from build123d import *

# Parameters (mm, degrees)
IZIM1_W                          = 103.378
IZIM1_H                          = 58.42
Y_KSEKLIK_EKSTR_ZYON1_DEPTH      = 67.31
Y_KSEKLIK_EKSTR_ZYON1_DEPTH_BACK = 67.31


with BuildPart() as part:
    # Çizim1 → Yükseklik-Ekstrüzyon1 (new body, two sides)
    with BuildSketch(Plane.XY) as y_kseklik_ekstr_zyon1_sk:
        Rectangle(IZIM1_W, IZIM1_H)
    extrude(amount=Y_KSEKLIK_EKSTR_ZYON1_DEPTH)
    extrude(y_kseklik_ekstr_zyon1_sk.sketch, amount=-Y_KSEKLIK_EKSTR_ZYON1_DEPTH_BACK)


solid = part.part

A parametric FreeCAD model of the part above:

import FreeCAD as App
import Part
import Sketcher
from FreeCAD import Vector
Q = App.Units.Quantity


def add_polygon(sketch, points):
    """Adds a closed chain of lines whose ends are joined by coincident constraints."""
    first, n = sketch.GeometryCount, len(points)
    for a, b in zip(points, points[1:] + points[:1]):
        sketch.addGeometry(Part.LineSegment(App.Vector(*a, 0), App.Vector(*b, 0)), False)
    for i in range(n):
        sketch.addConstraint(Sketcher.Constraint("Coincident", first + i, 2, first + (i + 1) % n, 1))

doc = App.newDocument("Part")
body = doc.addObject("PartDesign::Body", "Body")

sketch1 = doc.addObject("Sketcher::SketchObject", "Sketch")
body.addObject(sketch1)
sketch1.AttachmentSupport = (doc.XY_Plane, [""])
sketch1.MapMode = "FlatFace"
add_polygon(sketch1, [(-52, 29), (-52, -29), (52, -29), (52, 29)])
sketch1.addConstraint(Sketcher.Constraint("Vertical", 0))
sketch1.addConstraint(Sketcher.Constraint("Horizontal", 1))
sketch1.addConstraint(Sketcher.Constraint("Vertical", 2))
sketch1.addConstraint(Sketcher.Constraint("Horizontal", 3))
sketch1.addConstraint(Sketcher.Constraint("Symmetric", 0, 2, 2, 2, -1, 1))
sketch1.addConstraint(Sketcher.Constraint("DistanceY", 0, 2, 0, 1, Q("2.3 in")))
sketch1.addConstraint(Sketcher.Constraint("DistanceX", 1, 1, 1, 2, Q("4.07 in")))
pad1 = doc.addObject("PartDesign::Pad", "Pad")
body.addObject(pad1)
pad1.Profile = sketch1
pad1.Type = "TwoLengths"
pad1.Length = Q("2.65 in")
pad1.Length2 = Q("2.65 in")

doc.recompute()
